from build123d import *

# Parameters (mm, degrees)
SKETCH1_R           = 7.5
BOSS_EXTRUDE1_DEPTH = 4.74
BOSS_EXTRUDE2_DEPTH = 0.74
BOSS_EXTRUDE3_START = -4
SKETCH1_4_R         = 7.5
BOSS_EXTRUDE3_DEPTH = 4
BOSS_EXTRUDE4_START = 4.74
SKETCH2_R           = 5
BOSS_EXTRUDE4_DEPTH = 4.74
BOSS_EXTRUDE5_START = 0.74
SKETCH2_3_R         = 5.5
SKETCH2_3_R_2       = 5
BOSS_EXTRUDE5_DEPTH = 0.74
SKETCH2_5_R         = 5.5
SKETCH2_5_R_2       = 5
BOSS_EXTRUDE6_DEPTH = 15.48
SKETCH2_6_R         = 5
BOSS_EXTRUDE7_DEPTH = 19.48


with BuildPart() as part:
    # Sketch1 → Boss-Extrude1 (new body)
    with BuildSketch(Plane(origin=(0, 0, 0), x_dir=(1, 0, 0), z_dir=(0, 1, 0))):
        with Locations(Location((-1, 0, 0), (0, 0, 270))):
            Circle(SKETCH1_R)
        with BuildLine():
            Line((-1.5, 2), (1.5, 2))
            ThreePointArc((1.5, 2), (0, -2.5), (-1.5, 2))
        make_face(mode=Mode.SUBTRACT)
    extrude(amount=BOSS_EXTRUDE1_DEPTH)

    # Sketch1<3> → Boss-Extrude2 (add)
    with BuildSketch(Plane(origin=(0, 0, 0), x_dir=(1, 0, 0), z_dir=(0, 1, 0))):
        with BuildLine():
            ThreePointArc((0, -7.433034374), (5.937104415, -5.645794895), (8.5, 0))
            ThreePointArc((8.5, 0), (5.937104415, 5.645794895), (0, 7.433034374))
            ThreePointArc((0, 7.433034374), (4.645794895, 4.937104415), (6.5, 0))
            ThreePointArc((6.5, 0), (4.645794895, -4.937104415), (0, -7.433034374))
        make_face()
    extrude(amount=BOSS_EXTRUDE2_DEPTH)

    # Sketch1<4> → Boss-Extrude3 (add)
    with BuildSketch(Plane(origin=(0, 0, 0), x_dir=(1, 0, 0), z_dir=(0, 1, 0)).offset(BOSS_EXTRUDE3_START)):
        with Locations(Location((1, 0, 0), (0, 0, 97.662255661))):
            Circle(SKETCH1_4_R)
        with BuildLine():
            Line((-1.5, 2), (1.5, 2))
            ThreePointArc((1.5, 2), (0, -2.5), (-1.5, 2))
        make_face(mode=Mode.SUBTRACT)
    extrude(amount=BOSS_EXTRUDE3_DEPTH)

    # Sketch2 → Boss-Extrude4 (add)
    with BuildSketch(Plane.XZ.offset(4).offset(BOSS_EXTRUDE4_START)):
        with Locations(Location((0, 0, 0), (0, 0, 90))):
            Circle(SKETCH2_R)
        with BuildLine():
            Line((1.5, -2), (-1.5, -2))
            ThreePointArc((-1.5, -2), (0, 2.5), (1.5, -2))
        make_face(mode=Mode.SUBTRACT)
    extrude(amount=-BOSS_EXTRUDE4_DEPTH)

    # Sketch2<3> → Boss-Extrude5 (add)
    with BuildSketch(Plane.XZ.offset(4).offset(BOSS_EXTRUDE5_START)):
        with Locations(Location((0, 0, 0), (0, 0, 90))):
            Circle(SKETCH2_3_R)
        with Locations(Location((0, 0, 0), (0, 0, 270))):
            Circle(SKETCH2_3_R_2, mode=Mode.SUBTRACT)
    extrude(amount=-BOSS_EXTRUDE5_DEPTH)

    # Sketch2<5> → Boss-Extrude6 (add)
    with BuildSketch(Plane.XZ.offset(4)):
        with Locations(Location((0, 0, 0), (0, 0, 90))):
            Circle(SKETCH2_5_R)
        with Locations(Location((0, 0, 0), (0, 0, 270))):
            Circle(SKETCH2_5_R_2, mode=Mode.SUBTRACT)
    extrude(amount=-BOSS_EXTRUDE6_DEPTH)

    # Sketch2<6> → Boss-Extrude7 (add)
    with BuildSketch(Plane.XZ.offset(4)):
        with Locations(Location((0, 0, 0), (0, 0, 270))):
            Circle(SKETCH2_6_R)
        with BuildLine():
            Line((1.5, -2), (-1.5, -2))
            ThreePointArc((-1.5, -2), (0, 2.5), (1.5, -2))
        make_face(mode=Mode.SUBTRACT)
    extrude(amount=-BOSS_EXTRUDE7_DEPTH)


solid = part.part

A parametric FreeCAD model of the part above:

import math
import FreeCAD as App
import Part
import Sketcher
from FreeCAD import Vector
Q = App.Units.Quantity

doc = App.newDocument("Part")
body = doc.addObject("PartDesign::Body", "Body")

sketch1 = body.newObject("Sketcher::SketchObject", "Sketch")
sketch1.AttachmentSupport = (doc.getObject("XZ_Plane"), [""])
sketch1.MapMode = "FlatFace"
sketch1.addGeometry([
    Part.Circle(Vector(-1, 0, 0), Vector(0, 0, 1), 7.5),
    Part.ArcOfCircle(Part.Circle(Vector(0, 0, 0), Vector(0, 0, 1), 2.5), math.radians(-53.130102), math.radians(233.130102)),
    Part.LineSegment(Vector(-1.5, -2, 0), Vector(1.5, -2, 0)),
], False)
sketch1.addConstraint([
    Sketcher.Constraint("Coincident", 1, 1, 2, 2),
    Sketcher.Constraint("Coincident", 2, 1, 1, 2),
    Sketcher.Constraint("Horizontal", 2),
    Sketcher.Constraint("Coincident", 1, 3, -1, 1),
    Sketcher.Constraint("PointOnObject", 0, 3, -1),
    Sketcher.Constraint("Diameter", 0, Q("15 mm")),
    Sketcher.Constraint("Radius", 1, Q("2.5 mm")),
    Sketcher.Constraint("DistanceX", 2, 1, 2, 2, Q("3 mm")),
    Sketcher.Constraint("DistanceX", 0, 3, -1, 1, Q("1 mm")),
])
pad1 = body.newObject("PartDesign::Pad", "Pad")
pad1.Profile = sketch1
pad1.Length = 4.74
pad1.Reversed = True

sketch2 = body.newObject("Sketcher::SketchObject", "Sketch001")
sketch2.AttachmentSupport = (doc.getObject("XZ_Plane"), [""])
sketch2.MapMode = "FlatFace"
sketch2.addGeometry([
    Part.ArcOfCircle(Part.Circle(Vector(1, 0, 0), Vector(0, 0, 1), 7.5), math.radians(0), math.radians(97.662256)),
    Part.ArcOfCircle(Part.Circle(Vector(1, 0, 0), Vector(0, 0, 1), 7.5), math.radians(-97.662256), math.radians(0)),
    Part.ArcOfCircle(Part.Circle(Vector(-1, 0, 0), Vector(0, 0, 1), 7.5), math.radians(-82.337744), math.radians(0)),
    Part.ArcOfCircle(Part.Circle(Vector(-1, 0, 0), Vector(0, 0, 1), 7.5), math.radians(0), math.radians(82.337744)),
], False)
sketch2.addConstraint([
    Sketcher.Constraint("Tangent", 0, 1, 1, 2),
    Sketcher.Constraint("Coincident", 1, 1, 2, 1),
    Sketcher.Constraint("Tangent", 2, 2, 3, 1),
    Sketcher.Constraint("Coincident", 3, 2, 0, 2),
    Sketcher.Constraint("Equal", 0, 1),
    Sketcher.Constraint("Equal", 1, 2),
    Sketcher.Constraint("Equal", 2, 3),
    Sketcher.Constraint("Symmetric", 0, 3, 2, 3, -1, 1),
    Sketcher.Constraint("PointOnObject", 0, 3, -1),
    Sketcher.Constraint("PointOnObject", 0, 1, -1),
    Sketcher.Constraint("PointOnObject", 2, 2, -1),
    Sketcher.Constraint("Radius", 0, Q("7.5 mm")),
    Sketcher.Constraint("DistanceX", -1, 1, 0, 3, Q("1 mm")),
])
pad2 = body.newObject("PartDesign::Pad", "Pad001")
pad2.Profile = sketch2
pad2.Length = 0.74
pad2.Reversed = True

sketch3 = body.newObject("Sketcher::SketchObject", "Sketch002")
sketch3.AttachmentSupport = (doc.getObject("XZ_Plane"), [""])
sketch3.MapMode = "FlatFace"
sketch3.AttachmentOffset = App.Placement(Vector(0, 0, 4), App.Rotation())
sketch3.addGeometry([
    Part.Circle(Vector(1, 0, 0), Vector(0, 0, 1), 7.5),
    Part.ArcOfCircle(Part.Circle(Vector(0, 0, 0), Vector(0, 0, 1), 2.5), math.radians(-53.130102), math.radians(233.130102)),
    Part.LineSegment(Vector(-1.5, -2, 0), Vector(1.5, -2, 0)),
], False)
sketch3.addConstraint([
    Sketcher.Constraint("Coincident", 1, 1, 2, 2),
    Sketcher.Constraint("Coincident", 2, 1, 1, 2),
    Sketcher.Constraint("Horizontal", 2),
    Sketcher.Constraint("Coincident", 1, 3, -1, 1),
    Sketcher.Constraint("PointOnObject", 0, 3, -1),
    Sketcher.Constraint("Diameter", 0, Q("15 mm")),
    Sketcher.Constraint("Radius", 1, Q("2.5 mm")),
    Sketcher.Constraint("DistanceX", 2, 1, 2, 2, Q("3 mm")),
    Sketcher.Constraint("DistanceX", -1, 1, 0, 3, Q("1 mm")),
])
pad3 = body.newObject("PartDesign::Pad", "Pad002")
pad3.Profile = sketch3
pad3.Length = 4
pad3.Reversed = True

sketch4 = body.newObject("Sketcher::SketchObject", "Sketch003")
sketch4.AttachmentSupport = (doc.getObject("XZ_Plane"), [""])
sketch4.MapMode = "FlatFace"
sketch4.AttachmentOffset = App.Placement(Vector(0, 0, 8.74), App.Rotation())
sketch4.addGeometry([
    Part.Circle(Vector(0, 0, 0), Vector(0, 0, 1), 5),
    Part.ArcOfCircle(Part.Circle(Vector(0, 0, 0), Vector(0, 0, 1), 2.5), math.radians(-53.130102), math.radians(233.130102)),
    Part.LineSegment(Vector(1.5, -2, 0), Vector(-1.5, -2, 0)),
], False)
sketch4.addConstraint([
    Sketcher.Constraint("Coincident", 1, 1, 2, 1),
    Sketcher.Constraint("Coincident", 2, 2, 1, 2),
    Sketcher.Constraint("Horizontal", 2),
    Sketcher.Constraint("Coincident", 0, 3, -1, 1),
    Sketcher.Constraint("Coincident", 1, 3, -1, 1),
    Sketcher.Constraint("Diameter", 0, Q("10 mm")),
    Sketcher.Constraint("Radius", 1, Q("2.5 mm")),
    Sketcher.Constraint("DistanceX", 2, 2, 2, 1, Q("3 mm")),
])
pad4 = body.newObject("PartDesign::Pad", "Pad003")
pad4.Profile = sketch4
pad4.Length = 4.74
pad4.Reversed = True

sketch5 = body.newObject("Sketcher::SketchObject", "Sketch004")
sketch5.AttachmentSupport = (doc.getObject("XZ_Plane"), [""])
sketch5.MapMode = "FlatFace"
sketch5.AttachmentOffset = App.Placement(Vector(0, 0, 4.74), App.Rotation())
sketch5.addGeometry([
    Part.Circle(Vector(0, 0, 0), Vector(0, 0, 1), 5.5),
    Part.Circle(Vector(0, 0, 0), Vector(0, 0, 1), 5),
], False)
sketch5.addConstraint([
    Sketcher.Constraint("Coincident", 0, 3, -1, 1),
    Sketcher.Constraint("Coincident", 1, 3, -1, 1),
    Sketcher.Constraint("Diameter", 0, Q("11 mm")),
    Sketcher.Constraint("Diameter", 1, Q("10 mm")),
])
pad5 = body.newObject("PartDesign::Pad", "Pad004")
pad5.Profile = sketch5
pad5.Length = 0.74
pad5.Reversed = True

sketch6 = body.newObject("Sketcher::SketchObject", "Sketch005")
sketch6.AttachmentSupport = (doc.getObject("XZ_Plane"), [""])
sketch6.MapMode = "FlatFace"
sketch6.AttachmentOffset = App.Placement(Vector(0, 0, 4), App.Rotation())
sketch6.addGeometry([
    Part.Circle(Vector(0, 0, 0), Vector(0, 0, 1), 5.5),
    Part.Circle(Vector(0, 0, 0), Vector(0, 0, 1), 5),
], False)
sketch6.addConstraint([
    Sketcher.Constraint("Coincident", 0, 3, -1, 1),
    Sketcher.Constraint("Coincident", 1, 3, -1, 1),
    Sketcher.Constraint("Diameter", 0, Q("11 mm")),
    Sketcher.Constraint("Diameter", 1, Q("10 mm")),
])
pad6 = body.newObject("PartDesign::Pad", "Pad005")
pad6.Profile = sketch6
pad6.Length = 15.48
pad6.Reversed = True

sketch7 = body.newObject("Sketcher::SketchObject", "Sketch006")
sketch7.AttachmentSupport = (doc.getObject("XZ_Plane"), [""])
sketch7.MapMode = "FlatFace"
sketch7.AttachmentOffset = App.Placement(Vector(0, 0, 4), App.Rotation())
sketch7.addGeometry([
    Part.Circle(Vector(0, 0, 0), Vector(0, 0, 1), 5),
    Part.ArcOfCircle(Part.Circle(Vector(0, 0, 0), Vector(0, 0, 1), 2.5), math.radians(-53.130102), math.radians(233.130102)),
    Part.LineSegment(Vector(1.5, -2, 0), Vector(-1.5, -2, 0)),
], False)
sketch7.addConstraint([
    Sketcher.Constraint("Coincident", 1, 1, 2, 1),
    Sketcher.Constraint("Coincident", 2, 2, 1, 2),
    Sketcher.Constraint("Horizontal", 2),
    Sketcher.Constraint("Coincident", 0, 3, -1, 1),
    Sketcher.Constraint("Coincident", 1, 3, -1, 1),
    Sketcher.Constraint("Diameter", 0, Q("10 mm")),
    Sketcher.Constraint("Radius", 1, Q("2.5 mm")),
    Sketcher.Constraint("DistanceX", 2, 2, 2, 1, Q("3 mm")),
])
pad7 = body.newObject("PartDesign::Pad", "Pad006")
pad7.Profile = sketch7
pad7.Length = 19.48
pad7.Reversed = True

doc.recompute()
